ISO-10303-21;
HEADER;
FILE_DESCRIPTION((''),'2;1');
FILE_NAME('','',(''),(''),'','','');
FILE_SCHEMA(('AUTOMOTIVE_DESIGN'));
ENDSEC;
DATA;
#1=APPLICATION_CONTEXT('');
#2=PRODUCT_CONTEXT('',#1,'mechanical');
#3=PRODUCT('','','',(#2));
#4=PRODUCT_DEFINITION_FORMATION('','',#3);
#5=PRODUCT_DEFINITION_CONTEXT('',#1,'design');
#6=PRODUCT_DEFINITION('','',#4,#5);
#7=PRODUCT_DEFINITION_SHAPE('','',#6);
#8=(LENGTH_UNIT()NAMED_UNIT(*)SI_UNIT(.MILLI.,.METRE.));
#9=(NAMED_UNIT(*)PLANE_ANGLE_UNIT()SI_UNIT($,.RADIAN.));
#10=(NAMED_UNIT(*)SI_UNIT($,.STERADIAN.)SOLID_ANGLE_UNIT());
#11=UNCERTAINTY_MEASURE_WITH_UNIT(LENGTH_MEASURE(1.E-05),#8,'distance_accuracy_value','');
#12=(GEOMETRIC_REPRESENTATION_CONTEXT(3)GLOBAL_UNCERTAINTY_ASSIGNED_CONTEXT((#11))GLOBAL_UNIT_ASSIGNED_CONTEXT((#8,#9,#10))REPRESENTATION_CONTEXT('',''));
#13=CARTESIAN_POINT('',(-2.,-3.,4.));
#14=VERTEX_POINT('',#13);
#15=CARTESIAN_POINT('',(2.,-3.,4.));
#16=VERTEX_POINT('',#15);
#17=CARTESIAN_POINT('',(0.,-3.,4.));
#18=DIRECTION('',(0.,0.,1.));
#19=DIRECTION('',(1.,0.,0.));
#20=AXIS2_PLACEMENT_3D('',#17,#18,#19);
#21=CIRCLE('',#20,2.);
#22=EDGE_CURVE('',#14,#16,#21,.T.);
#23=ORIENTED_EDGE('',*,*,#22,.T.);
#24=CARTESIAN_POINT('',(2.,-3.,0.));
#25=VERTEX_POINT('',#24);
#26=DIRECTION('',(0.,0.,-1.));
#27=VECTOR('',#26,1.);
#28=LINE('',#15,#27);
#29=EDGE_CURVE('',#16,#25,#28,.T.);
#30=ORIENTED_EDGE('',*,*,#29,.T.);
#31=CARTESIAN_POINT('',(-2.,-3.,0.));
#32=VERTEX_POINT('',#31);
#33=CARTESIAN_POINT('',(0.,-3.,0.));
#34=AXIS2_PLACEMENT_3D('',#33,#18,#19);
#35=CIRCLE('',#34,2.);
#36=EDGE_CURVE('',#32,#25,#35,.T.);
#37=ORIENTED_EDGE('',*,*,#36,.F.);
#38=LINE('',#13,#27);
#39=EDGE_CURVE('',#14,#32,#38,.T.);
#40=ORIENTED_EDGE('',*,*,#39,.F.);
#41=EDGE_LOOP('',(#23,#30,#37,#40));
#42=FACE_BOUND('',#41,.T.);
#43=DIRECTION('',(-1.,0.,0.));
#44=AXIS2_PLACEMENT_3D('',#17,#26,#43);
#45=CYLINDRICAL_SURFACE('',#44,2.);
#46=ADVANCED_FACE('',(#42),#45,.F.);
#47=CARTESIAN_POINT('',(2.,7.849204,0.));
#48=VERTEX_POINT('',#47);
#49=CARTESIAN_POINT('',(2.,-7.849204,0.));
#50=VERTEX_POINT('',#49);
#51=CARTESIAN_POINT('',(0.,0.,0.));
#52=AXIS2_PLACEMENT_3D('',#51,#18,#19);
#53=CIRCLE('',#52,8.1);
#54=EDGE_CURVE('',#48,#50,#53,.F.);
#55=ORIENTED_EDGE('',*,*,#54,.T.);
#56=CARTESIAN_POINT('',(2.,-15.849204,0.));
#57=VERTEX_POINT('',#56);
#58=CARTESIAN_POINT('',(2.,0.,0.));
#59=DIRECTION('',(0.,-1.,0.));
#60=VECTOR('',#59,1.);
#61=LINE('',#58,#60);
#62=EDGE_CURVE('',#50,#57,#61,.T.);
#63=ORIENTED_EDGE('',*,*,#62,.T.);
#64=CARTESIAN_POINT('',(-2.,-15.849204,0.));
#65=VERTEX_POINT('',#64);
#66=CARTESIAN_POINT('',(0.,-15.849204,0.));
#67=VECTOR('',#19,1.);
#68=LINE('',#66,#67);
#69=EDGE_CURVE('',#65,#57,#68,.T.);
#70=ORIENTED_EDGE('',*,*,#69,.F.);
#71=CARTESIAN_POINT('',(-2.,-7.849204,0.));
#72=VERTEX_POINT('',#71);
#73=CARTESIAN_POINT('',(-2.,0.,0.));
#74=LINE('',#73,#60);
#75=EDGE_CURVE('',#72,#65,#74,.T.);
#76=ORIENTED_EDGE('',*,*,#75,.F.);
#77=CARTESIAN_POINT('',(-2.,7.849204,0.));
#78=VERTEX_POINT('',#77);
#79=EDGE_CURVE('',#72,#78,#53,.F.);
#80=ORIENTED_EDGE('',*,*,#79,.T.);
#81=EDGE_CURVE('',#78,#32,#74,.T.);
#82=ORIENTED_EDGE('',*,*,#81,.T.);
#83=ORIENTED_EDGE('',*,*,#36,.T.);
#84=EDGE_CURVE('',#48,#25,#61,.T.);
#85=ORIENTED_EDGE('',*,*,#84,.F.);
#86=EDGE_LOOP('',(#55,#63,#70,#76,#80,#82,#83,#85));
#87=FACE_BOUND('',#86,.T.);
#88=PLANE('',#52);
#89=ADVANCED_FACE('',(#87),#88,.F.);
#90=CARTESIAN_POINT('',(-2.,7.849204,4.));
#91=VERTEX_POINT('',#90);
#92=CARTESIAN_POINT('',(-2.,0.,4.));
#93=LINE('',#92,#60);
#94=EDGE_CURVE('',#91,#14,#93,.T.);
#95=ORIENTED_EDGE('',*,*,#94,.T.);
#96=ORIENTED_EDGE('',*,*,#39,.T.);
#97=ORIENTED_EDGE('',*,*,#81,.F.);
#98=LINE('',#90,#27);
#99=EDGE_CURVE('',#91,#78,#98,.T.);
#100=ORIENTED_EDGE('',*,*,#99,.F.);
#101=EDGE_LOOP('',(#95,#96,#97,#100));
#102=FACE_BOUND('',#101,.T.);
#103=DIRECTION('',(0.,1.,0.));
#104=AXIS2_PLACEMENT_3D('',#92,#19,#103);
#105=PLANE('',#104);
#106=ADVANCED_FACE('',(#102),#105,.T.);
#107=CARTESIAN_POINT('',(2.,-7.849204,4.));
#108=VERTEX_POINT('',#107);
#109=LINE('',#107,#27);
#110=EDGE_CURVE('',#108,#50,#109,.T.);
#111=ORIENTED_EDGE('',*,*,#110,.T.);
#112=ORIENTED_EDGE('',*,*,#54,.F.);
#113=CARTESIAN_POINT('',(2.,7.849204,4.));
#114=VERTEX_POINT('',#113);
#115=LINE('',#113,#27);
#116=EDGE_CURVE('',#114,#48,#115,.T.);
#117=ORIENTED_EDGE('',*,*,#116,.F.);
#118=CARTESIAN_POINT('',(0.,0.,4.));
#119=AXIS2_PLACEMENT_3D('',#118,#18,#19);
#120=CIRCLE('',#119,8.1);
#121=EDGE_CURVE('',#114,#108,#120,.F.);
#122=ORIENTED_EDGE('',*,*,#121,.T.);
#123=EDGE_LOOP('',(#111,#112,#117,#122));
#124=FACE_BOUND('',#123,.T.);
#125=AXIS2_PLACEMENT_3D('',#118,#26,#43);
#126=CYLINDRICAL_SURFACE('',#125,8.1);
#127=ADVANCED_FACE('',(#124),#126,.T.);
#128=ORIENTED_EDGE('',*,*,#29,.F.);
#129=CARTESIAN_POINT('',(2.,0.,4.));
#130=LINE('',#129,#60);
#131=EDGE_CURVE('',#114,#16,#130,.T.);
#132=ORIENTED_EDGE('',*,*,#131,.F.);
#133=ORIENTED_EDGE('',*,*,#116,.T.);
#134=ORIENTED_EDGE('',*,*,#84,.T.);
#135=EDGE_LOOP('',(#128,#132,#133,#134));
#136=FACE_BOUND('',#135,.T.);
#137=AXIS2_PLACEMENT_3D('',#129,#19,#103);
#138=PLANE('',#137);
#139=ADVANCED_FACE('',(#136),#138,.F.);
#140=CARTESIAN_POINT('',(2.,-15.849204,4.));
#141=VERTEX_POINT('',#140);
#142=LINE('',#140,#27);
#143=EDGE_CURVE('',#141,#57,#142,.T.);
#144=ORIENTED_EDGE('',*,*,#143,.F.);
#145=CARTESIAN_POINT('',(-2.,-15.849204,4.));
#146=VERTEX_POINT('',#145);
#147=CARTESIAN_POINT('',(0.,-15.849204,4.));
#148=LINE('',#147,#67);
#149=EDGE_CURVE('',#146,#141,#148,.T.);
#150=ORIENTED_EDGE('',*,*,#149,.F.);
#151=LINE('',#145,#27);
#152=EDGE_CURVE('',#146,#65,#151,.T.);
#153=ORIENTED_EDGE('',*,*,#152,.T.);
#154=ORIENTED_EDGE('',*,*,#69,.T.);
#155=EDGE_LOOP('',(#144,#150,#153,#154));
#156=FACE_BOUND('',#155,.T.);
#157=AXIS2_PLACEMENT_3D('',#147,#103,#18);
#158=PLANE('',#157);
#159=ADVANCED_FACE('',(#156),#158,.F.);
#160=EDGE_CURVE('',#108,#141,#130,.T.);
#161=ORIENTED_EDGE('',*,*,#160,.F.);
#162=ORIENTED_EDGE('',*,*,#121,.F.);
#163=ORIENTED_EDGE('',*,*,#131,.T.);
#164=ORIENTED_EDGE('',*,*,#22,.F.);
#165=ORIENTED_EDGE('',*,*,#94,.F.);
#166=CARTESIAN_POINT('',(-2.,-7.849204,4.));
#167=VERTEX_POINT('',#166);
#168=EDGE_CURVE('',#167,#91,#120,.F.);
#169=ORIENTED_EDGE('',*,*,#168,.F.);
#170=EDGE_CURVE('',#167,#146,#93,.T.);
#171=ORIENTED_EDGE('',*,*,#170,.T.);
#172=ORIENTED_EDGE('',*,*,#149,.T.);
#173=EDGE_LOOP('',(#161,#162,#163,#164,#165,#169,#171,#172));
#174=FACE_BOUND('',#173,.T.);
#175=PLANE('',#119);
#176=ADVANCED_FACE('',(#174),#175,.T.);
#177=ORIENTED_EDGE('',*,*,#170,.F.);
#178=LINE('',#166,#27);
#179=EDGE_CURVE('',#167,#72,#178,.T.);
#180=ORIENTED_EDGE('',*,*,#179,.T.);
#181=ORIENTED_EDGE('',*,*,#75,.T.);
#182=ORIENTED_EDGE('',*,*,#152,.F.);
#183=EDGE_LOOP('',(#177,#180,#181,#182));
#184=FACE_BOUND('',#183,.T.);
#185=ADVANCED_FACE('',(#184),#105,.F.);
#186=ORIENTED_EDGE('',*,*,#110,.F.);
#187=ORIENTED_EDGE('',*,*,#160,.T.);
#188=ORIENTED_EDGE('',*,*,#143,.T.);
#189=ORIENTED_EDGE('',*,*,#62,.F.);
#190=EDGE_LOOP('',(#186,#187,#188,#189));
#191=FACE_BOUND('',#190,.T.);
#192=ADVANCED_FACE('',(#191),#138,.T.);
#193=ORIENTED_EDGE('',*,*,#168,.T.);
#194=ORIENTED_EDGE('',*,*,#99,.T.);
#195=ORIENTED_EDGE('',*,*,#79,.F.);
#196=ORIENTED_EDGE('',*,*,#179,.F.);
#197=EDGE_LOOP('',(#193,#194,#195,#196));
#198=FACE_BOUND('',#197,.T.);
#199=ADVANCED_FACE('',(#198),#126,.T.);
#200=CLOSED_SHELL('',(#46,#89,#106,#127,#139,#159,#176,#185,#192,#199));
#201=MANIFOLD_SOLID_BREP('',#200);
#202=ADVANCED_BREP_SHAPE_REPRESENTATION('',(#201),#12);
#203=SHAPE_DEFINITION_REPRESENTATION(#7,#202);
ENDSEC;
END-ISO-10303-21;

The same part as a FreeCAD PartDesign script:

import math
import FreeCAD as App
import Part
import Sketcher
Q = App.Units.Quantity

doc = App.newDocument("Part")
body = doc.addObject("PartDesign::Body", "Body")

# Sketch on XY plane
sketch1 = doc.addObject("Sketcher::SketchObject", "Sketch")
body.addObject(sketch1)
sketch1.AttachmentSupport = (doc.XY_Plane, [""])
sketch1.MapMode = "FlatFace"
sketch1.addGeometry(Part.ArcOfCircle(Part.Circle(App.Vector(0, 0, 0), App.Vector(0, 0, 1), 8.1), math.radians(104), math.radians(256)), False)
sketch1.addGeometry(Part.LineSegment(App.Vector(-2, -7.8, 0), App.Vector(-2, -15.8, 0)), False)
sketch1.addGeometry(Part.LineSegment(App.Vector(-2, -15.8, 0), App.Vector(2, -15.8, 0)), False)
sketch1.addGeometry(Part.LineSegment(App.Vector(2, -15.8, 0), App.Vector(2, -7.8, 0)), False)
sketch1.addGeometry(Part.ArcOfCircle(Part.Circle(App.Vector(0, 0, 0), App.Vector(0, 0, 1), 8.1), math.radians(-76), math.radians(76)), False)
sketch1.addGeometry(Part.LineSegment(App.Vector(2, 7.8, 0), App.Vector(2, -3, 0)), False)
sketch1.addGeometry(Part.ArcOfCircle(Part.Circle(App.Vector(0, -3, 0), App.Vector(0, 0, 1), 2), math.radians(180), math.radians(360)), False)
sketch1.addGeometry(Part.LineSegment(App.Vector(-2, -3, 0), App.Vector(-2, 7.8, 0)), False)
sketch1.addConstraint(Sketcher.Constraint("Coincident", 0, 2, 1, 1))
sketch1.addConstraint(Sketcher.Constraint("Coincident", 1, 2, 2, 1))
sketch1.addConstraint(Sketcher.Constraint("Coincident", 2, 2, 3, 1))
sketch1.addConstraint(Sketcher.Constraint("Coincident", 3, 2, 4, 1))
sketch1.addConstraint(Sketcher.Constraint("Coincident", 4, 2, 5, 1))
sketch1.addConstraint(Sketcher.Constraint("Tangent", 5, 2, 6, 2))
sketch1.addConstraint(Sketcher.Constraint("Tangent", 6, 1, 7, 1))
sketch1.addConstraint(Sketcher.Constraint("Coincident", 7, 2, 0, 1))
sketch1.addConstraint(Sketcher.Constraint("Vertical", 1))
sketch1.addConstraint(Sketcher.Constraint("Horizontal", 2))
sketch1.addConstraint(Sketcher.Constraint("Vertical", 3))
sketch1.addConstraint(Sketcher.Constraint("Vertical", 5))
sketch1.addConstraint(Sketcher.Constraint("Vertical", 7))
sketch1.addConstraint(Sketcher.Constraint("Coincident", 0, 3, -1, 1))
sketch1.addConstraint(Sketcher.Constraint("Coincident", 4, 3, -1, 1))
sketch1.addConstraint(Sketcher.Constraint("Equal", 0, 4))
sketch1.addConstraint(Sketcher.Constraint("PointOnObject", 6, 3, -2))
sketch1.addConstraint(Sketcher.Constraint("Horizontal", 0, 2, 3, 2))
sketch1.addConstraint(Sketcher.Constraint("Vertical", 3, 2, 4, 2))
sketch1.addConstraint(Sketcher.Constraint("Radius", 6, Q("2 mm")))
sketch1.addConstraint(Sketcher.Constraint("Radius", 0, Q("8.1 mm")))
sketch1.addConstraint(Sketcher.Constraint("DistanceY", 1, 2, 1, 1, Q("8 mm")))
sketch1.addConstraint(Sketcher.Constraint("DistanceY", 6, 3, -1, 1, Q("3 mm")))
pad1 = doc.addObject("PartDesign::Pad", "Pad")
body.addObject(pad1)
pad1.Profile = sketch1
pad1.Length = 4

doc.recompute()
